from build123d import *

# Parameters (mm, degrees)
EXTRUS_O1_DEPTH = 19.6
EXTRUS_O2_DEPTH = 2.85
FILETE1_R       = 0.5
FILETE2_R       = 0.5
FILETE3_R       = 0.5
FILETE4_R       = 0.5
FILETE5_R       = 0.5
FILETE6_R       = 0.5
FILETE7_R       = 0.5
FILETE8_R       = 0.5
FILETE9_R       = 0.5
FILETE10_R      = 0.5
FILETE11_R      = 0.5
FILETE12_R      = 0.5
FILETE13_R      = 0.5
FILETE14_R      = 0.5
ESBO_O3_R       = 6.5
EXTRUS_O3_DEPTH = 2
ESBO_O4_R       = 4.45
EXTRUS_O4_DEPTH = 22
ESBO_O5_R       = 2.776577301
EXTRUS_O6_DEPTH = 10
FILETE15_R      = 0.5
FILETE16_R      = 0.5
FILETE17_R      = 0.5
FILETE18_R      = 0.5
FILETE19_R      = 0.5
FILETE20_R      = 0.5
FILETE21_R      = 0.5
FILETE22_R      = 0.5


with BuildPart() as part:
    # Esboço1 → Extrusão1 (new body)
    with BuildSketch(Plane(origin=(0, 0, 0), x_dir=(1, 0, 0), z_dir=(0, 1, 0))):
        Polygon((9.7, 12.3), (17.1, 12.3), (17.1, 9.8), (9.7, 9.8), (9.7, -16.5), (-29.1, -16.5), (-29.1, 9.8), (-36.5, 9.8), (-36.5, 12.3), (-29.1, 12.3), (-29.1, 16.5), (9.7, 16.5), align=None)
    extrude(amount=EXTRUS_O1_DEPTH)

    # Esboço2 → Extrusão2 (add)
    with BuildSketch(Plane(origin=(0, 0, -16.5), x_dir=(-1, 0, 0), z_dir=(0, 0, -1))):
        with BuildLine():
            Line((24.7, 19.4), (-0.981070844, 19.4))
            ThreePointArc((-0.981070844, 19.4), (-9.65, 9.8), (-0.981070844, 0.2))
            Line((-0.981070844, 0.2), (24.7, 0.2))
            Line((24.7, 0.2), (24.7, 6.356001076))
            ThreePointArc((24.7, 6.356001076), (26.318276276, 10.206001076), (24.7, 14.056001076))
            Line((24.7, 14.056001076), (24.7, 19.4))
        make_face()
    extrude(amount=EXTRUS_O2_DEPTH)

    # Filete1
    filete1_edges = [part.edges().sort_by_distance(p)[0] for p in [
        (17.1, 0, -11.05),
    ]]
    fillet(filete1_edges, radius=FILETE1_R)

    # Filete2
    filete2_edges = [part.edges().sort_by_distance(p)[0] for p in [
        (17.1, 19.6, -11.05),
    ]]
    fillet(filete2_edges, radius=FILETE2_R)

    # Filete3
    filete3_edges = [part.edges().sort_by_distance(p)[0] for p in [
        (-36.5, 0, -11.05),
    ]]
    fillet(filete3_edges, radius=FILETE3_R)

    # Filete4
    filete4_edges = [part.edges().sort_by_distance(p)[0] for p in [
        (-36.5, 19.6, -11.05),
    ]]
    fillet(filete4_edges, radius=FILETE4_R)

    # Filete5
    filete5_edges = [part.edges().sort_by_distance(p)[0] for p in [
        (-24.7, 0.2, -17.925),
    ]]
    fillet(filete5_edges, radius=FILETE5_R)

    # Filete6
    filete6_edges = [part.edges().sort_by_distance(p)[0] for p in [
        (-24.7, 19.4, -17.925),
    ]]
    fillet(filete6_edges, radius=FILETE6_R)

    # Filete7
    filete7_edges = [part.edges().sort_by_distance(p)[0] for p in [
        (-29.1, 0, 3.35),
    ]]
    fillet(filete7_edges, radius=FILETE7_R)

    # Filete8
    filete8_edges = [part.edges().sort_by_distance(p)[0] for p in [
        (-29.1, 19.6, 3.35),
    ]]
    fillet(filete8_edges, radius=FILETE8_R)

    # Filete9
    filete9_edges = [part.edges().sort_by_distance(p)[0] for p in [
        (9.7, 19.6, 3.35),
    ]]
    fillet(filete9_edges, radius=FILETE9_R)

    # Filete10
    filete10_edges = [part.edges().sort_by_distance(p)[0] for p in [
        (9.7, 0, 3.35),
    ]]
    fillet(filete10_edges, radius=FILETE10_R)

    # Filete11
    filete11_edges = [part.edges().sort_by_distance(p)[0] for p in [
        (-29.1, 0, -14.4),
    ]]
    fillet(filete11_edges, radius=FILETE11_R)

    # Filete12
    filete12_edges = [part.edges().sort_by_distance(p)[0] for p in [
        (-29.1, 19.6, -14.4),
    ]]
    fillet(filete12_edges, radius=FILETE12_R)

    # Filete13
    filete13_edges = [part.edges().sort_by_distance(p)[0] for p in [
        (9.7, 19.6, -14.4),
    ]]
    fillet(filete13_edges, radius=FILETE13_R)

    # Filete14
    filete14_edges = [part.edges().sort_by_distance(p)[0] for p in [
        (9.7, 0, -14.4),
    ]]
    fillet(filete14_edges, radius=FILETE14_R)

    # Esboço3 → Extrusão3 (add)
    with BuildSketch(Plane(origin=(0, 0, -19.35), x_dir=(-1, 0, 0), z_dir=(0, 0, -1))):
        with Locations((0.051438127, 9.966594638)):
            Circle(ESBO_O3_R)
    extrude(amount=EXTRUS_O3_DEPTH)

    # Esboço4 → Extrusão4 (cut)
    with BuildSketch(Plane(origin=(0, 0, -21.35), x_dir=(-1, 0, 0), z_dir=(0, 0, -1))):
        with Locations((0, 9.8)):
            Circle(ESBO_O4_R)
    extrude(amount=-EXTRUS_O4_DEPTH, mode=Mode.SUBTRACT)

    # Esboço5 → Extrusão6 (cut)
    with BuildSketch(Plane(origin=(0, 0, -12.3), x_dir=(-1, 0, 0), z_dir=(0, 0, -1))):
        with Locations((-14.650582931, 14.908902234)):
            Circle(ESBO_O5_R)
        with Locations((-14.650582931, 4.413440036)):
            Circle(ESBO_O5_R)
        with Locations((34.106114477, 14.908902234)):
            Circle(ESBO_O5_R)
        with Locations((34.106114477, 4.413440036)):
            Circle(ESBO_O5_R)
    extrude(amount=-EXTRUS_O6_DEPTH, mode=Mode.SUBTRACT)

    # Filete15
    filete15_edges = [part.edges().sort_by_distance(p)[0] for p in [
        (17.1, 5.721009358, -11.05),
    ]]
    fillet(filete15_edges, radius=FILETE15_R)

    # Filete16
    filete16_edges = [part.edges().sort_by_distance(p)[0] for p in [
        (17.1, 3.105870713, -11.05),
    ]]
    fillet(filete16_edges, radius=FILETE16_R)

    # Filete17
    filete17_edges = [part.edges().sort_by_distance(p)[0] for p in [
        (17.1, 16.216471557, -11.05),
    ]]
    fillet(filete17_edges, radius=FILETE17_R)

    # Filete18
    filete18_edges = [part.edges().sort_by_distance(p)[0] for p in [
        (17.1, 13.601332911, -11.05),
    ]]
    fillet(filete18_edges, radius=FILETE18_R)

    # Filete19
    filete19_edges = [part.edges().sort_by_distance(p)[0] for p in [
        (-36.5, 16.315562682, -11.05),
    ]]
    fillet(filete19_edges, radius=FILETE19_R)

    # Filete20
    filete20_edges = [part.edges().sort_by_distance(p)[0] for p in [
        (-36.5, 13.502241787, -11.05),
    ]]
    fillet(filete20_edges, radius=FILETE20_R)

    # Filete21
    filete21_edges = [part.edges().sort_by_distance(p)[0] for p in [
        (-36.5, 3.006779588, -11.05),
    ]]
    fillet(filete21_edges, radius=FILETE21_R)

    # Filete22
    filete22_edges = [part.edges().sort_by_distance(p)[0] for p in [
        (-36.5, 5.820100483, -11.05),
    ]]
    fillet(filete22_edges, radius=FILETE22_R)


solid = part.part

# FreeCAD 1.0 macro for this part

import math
import FreeCAD as App
import Part
import Sketcher
from FreeCAD import Vector


def edges_at(feature, points):
    """Names of the edges that pass closest to the given points."""
    edges = feature.Shape.Edges
    near = lambda p: min(range(len(edges)), key=lambda i: edges[i].distToShape(Part.Vertex(*p))[0])
    return sorted({f"Edge{near(p) + 1}" for p in points})


def add_polygon(sketch, points):
    """Adds a closed chain of lines whose ends are joined by coincident constraints."""
    first, n = sketch.GeometryCount, len(points)
    for a, b in zip(points, points[1:] + points[:1]):
        sketch.addGeometry(Part.LineSegment(App.Vector(*a, 0), App.Vector(*b, 0)), False)
    for i in range(n):
        sketch.addConstraint(Sketcher.Constraint("Coincident", first + i, 2, first + (i + 1) % n, 1))

doc = App.newDocument("Part")
body = doc.addObject("PartDesign::Body", "Body")

# Sketch on XZ plane
sketch1 = doc.addObject("Sketcher::SketchObject", "Sketch")
body.addObject(sketch1)
sketch1.AttachmentSupport = (doc.XZ_Plane, [""])
sketch1.MapMode = "FlatFace"
add_polygon(sketch1, [(17.1, -12.3), (9.7, -12.3), (9.7, -16.5), (-29.1, -16.5), (-29.1, -12.3), (-36.5, -12.3), (-36.5, -9.8), (-29.1, -9.8), (-29.1, 16.5), (9.7, 16.5), (9.7, -9.8), (17.1, -9.8)])  # lines 0-11
sketch1.addConstraint(Sketcher.Constraint("Horizontal", 0))
sketch1.addConstraint(Sketcher.Constraint("Vertical", 1))
sketch1.addConstraint(Sketcher.Constraint("Horizontal", 2))
sketch1.addConstraint(Sketcher.Constraint("Vertical", 3))
sketch1.addConstraint(Sketcher.Constraint("Horizontal", 4))
sketch1.addConstraint(Sketcher.Constraint("Vertical", 5))
sketch1.addConstraint(Sketcher.Constraint("Horizontal", 6))
sketch1.addConstraint(Sketcher.Constraint("Vertical", 7))
sketch1.addConstraint(Sketcher.Constraint("Horizontal", 8))
sketch1.addConstraint(Sketcher.Constraint("Vertical", 9))
sketch1.addConstraint(Sketcher.Constraint("Horizontal", 10))
sketch1.addConstraint(Sketcher.Constraint("Vertical", 11))
sketch1.addConstraint(Sketcher.Constraint("Symmetric", 2, 2, 7, 2, -1))
sketch1.addConstraint(Sketcher.Constraint("Horizontal", 0, 2, 3, 2))
sketch1.addConstraint(Sketcher.Constraint("Horizontal", 6, 2, 9, 2))
sketch1.addConstraint(Sketcher.Constraint("Vertical", 1, 2, 8, 2))
sketch1.addConstraint(Sketcher.Constraint("Equal", 0, 4))
sketch1.addConstraint(Sketcher.Constraint("DistanceX", 0, 2, 0, 1, 7.4))
sketch1.addConstraint(Sketcher.Constraint("DistanceX", 2, 2, 2, 1, 38.8))
sketch1.addConstraint(Sketcher.Constraint("DistanceY", 1, 2, 1, 1, 4.2))
sketch1.addConstraint(Sketcher.Constraint("DistanceY", 5, 1, 5, 2, 2.5))
sketch1.addConstraint(Sketcher.Constraint("DistanceY", 7, 1, 7, 2, 26.3))
sketch1.addConstraint(Sketcher.Constraint("DistanceX", -1, 1, 0, 2, 9.7))
pad1 = doc.addObject("PartDesign::Pad", "Pad")
body.addObject(pad1)
pad1.Profile = sketch1
pad1.Length = 19.6
pad1.Reversed = True

# Sketch on XY plane
sketch2 = doc.addObject("Sketcher::SketchObject", "Sketch001")
body.addObject(sketch2)
sketch2.AttachmentSupport = (doc.XY_Plane, [""])
sketch2.MapMode = "FlatFace"
sketch2.AttachmentOffset = App.Placement(Vector(0, 0, -16.5), App.Rotation())
sketch2.addGeometry(Part.LineSegment(Vector(-25, 19, 0), Vector(1, 19, 0)), False)
sketch2.addGeometry(Part.ArcOfCircle(Part.Circle(Vector(0, 10, 0), Vector(0, 0, 1), 10), math.radians(-84), math.radians(84)), False)
sketch2.addGeometry(Part.LineSegment(Vector(1, 0, 0), Vector(-25, 0, 0)), False)
sketch2.addGeometry(Part.LineSegment(Vector(-25, 0, 0), Vector(-25, 6, 0)), False)
sketch2.addGeometry(Part.ArcOfCircle(Part.Circle(Vector(-21, 10, 0), Vector(0, 0, 1), 5), math.radians(134), math.radians(226)), False)
sketch2.addGeometry(Part.LineSegment(Vector(-25, 14, 0), Vector(-25, 19, 0)), False)
sketch2.addConstraint(Sketcher.Constraint("Coincident", 0, 2, 1, 2))
sketch2.addConstraint(Sketcher.Constraint("Coincident", 1, 1, 2, 1))
sketch2.addConstraint(Sketcher.Constraint("Coincident", 2, 2, 3, 1))
sketch2.addConstraint(Sketcher.Constraint("Coincident", 3, 2, 4, 2))
sketch2.addConstraint(Sketcher.Constraint("Coincident", 4, 1, 5, 1))
sketch2.addConstraint(Sketcher.Constraint("Coincident", 5, 2, 0, 1))
sketch2.addConstraint(Sketcher.Constraint("Horizontal", 0))
sketch2.addConstraint(Sketcher.Constraint("Horizontal", 2))
sketch2.addConstraint(Sketcher.Constraint("Vertical", 3))
sketch2.addConstraint(Sketcher.Constraint("Vertical", 5))
sketch2.addConstraint(Sketcher.Constraint("PointOnObject", 1, 3, -2))
sketch2.addConstraint(Sketcher.Constraint("Vertical", 0, 2, 1, 1))
sketch2.addConstraint(Sketcher.Constraint("Vertical", 3, 2, 4, 1))
sketch2.addConstraint(Sketcher.Constraint("Radius", 1, 9.65))
sketch2.addConstraint(Sketcher.Constraint("DistanceY", -1, 1, 1, 3, 9.8))
sketch2.addConstraint(Sketcher.Constraint("DistanceY", -1, 1, 0, 2, 19.4))
sketch2.addConstraint(Sketcher.Constraint("DistanceX", 2, 2, -1, 1, 24.7))
sketch2.addConstraint(Sketcher.Constraint("DistanceY", 3, 2, 4, 1, 7.7))
sketch2.addConstraint(Sketcher.Constraint("DistanceY", 3, 1, 3, 2, 6.156001))
sketch2.addConstraint(Sketcher.Constraint("Radius", 4, 5.388857))
pad2 = doc.addObject("PartDesign::Pad", "Pad001")
body.addObject(pad2)
pad2.Profile = sketch2
pad2.Length = 2.85
pad2.Reversed = True
doc.recompute()

fillet = doc.addObject("PartDesign::Fillet", "Fillet")
body.addObject(fillet)
fillet.Base = (pad2, edges_at(pad2, [(17.1, 0, -11.05)]))
fillet.Radius = 0.5
doc.recompute()

fillet2 = doc.addObject("PartDesign::Fillet", "Fillet001")
body.addObject(fillet2)
fillet2.Base = (fillet, edges_at(fillet, [(17.1, 19.6, -11.05)]))
fillet2.Radius = 0.5
doc.recompute()

fillet3 = doc.addObject("PartDesign::Fillet", "Fillet002")
body.addObject(fillet3)
fillet3.Base = (fillet2, edges_at(fillet2, [(-36.5, 0, -11.05)]))
fillet3.Radius = 0.5
doc.recompute()

fillet4 = doc.addObject("PartDesign::Fillet", "Fillet003")
body.addObject(fillet4)
fillet4.Base = (fillet3, edges_at(fillet3, [(-36.5, 19.6, -11.05)]))
fillet4.Radius = 0.5
doc.recompute()

fillet5 = doc.addObject("PartDesign::Fillet", "Fillet004")
body.addObject(fillet5)
fillet5.Base = (fillet4, edges_at(fillet4, [(-24.7, 0.2, -17.925)]))
fillet5.Radius = 0.5
doc.recompute()

fillet6 = doc.addObject("PartDesign::Fillet", "Fillet005")
body.addObject(fillet6)
fillet6.Base = (fillet5, edges_at(fillet5, [(-24.7, 19.4, -17.925)]))
fillet6.Radius = 0.5
doc.recompute()

fillet7 = doc.addObject("PartDesign::Fillet", "Fillet006")
body.addObject(fillet7)
fillet7.Base = (fillet6, edges_at(fillet6, [(-29.1, 0, 3.35)]))
fillet7.Radius = 0.5
doc.recompute()

fillet8 = doc.addObject("PartDesign::Fillet", "Fillet007")
body.addObject(fillet8)
fillet8.Base = (fillet7, edges_at(fillet7, [(-29.1, 19.6, 3.35)]))
fillet8.Radius = 0.5
doc.recompute()

fillet9 = doc.addObject("PartDesign::Fillet", "Fillet008")
body.addObject(fillet9)
fillet9.Base = (fillet8, edges_at(fillet8, [(9.7, 19.6, 3.35)]))
fillet9.Radius = 0.5
doc.recompute()

fillet10 = doc.addObject("PartDesign::Fillet", "Fillet009")
body.addObject(fillet10)
fillet10.Base = (fillet9, edges_at(fillet9, [(9.7, 0, 3.35)]))
fillet10.Radius = 0.5
doc.recompute()

fillet11 = doc.addObject("PartDesign::Fillet", "Fillet010")
body.addObject(fillet11)
fillet11.Base = (fillet10, edges_at(fillet10, [(-29.1, 0, -14.4)]))
fillet11.Radius = 0.5
doc.recompute()

fillet12 = doc.addObject("PartDesign::Fillet", "Fillet011")
body.addObject(fillet12)
fillet12.Base = (fillet11, edges_at(fillet11, [(-29.1, 19.6, -14.4)]))
fillet12.Radius = 0.5
doc.recompute()

fillet13 = doc.addObject("PartDesign::Fillet", "Fillet012")
body.addObject(fillet13)
fillet13.Base = (fillet12, edges_at(fillet12, [(9.7, 19.6, -14.4)]))
fillet13.Radius = 0.5
doc.recompute()

fillet14 = doc.addObject("PartDesign::Fillet", "Fillet013")
body.addObject(fillet14)
fillet14.Base = (fillet13, edges_at(fillet13, [(9.7, 0, -14.4)]))
fillet14.Radius = 0.5

# Sketch on XY plane
sketch3 = doc.addObject("Sketcher::SketchObject", "Sketch002")
body.addObject(sketch3)
sketch3.AttachmentSupport = (doc.XY_Plane, [""])
sketch3.MapMode = "FlatFace"
sketch3.AttachmentOffset = App.Placement(Vector(0, 0, -19.35), App.Rotation())
sketch3.addGeometry(Part.Circle(Vector(0, 10, 0), Vector(0, 0, 1), 6), False)
sketch3.addConstraint(Sketcher.Constraint("Diameter", 0, 13.0))
sketch3.addConstraint(Sketcher.Constraint("DistanceX", 0, 3, -1, 1, 0.051438))
sketch3.addConstraint(Sketcher.Constraint("DistanceY", -1, 1, 0, 3, 9.966595))
pad3 = doc.addObject("PartDesign::Pad", "Pad002")
body.addObject(pad3)
pad3.Profile = sketch3
pad3.Length = 2
pad3.Reversed = True

# Sketch on XY plane
sketch4 = doc.addObject("Sketcher::SketchObject", "Sketch003")
body.addObject(sketch4)
sketch4.AttachmentSupport = (doc.XY_Plane, [""])
sketch4.MapMode = "FlatFace"
sketch4.AttachmentOffset = App.Placement(Vector(0, 0, -21.35), App.Rotation())
sketch4.addGeometry(Part.Circle(Vector(0, 9.8, 0), Vector(0, 0, 1), 4.5), False)
sketch4.addConstraint(Sketcher.Constraint("PointOnObject", 0, 3, -2))
sketch4.addConstraint(Sketcher.Constraint("Diameter", 0, 8.9))
sketch4.addConstraint(Sketcher.Constraint("DistanceY", -1, 1, 0, 3, 9.8))
pocket1 = doc.addObject("PartDesign::Pocket", "Pocket")
body.addObject(pocket1)
pocket1.Profile = sketch4
pocket1.Length = 22
pocket1.Reversed = True

# Sketch on XY plane
sketch5 = doc.addObject("Sketcher::SketchObject", "Sketch004")
body.addObject(sketch5)
sketch5.AttachmentSupport = (doc.XY_Plane, [""])
sketch5.MapMode = "FlatFace"
sketch5.AttachmentOffset = App.Placement(Vector(0, 0, -12.3), App.Rotation())
sketch5.addGeometry(Part.Circle(Vector(14.7, 14.9, 0), Vector(0, 0, 1), 2.8), False)
sketch5.addGeometry(Part.Circle(Vector(14.7, 4.4, 0), Vector(0, 0, 1), 2.8), False)
sketch5.addGeometry(Part.Circle(Vector(-34.1, 14.9, 0), Vector(0, 0, 1), 2.8), False)
sketch5.addGeometry(Part.Circle(Vector(-34.1, 4.4, 0), Vector(0, 0, 1), 2.8), False)
sketch5.addConstraint(Sketcher.Constraint("Equal", 0, 1))
sketch5.addConstraint(Sketcher.Constraint("Equal", 1, 2))
sketch5.addConstraint(Sketcher.Constraint("Equal", 2, 3))
sketch5.addConstraint(Sketcher.Constraint("Horizontal", 0, 3, 2, 3))
sketch5.addConstraint(Sketcher.Constraint("Horizontal", 1, 3, 3, 3))
sketch5.addConstraint(Sketcher.Constraint("Vertical", 0, 3, 1, 3))
sketch5.addConstraint(Sketcher.Constraint("Vertical", 2, 3, 3, 3))
sketch5.addConstraint(Sketcher.Constraint("Diameter", 0, 5.553155))
sketch5.addConstraint(Sketcher.Constraint("DistanceY", -1, 1, 1, 3, 4.41344))
sketch5.addConstraint(Sketcher.Constraint("DistanceX", -1, 1, 0, 3, 14.650583))
sketch5.addConstraint(Sketcher.Constraint("DistanceY", -1, 1, 0, 3, 14.908902))
sketch5.addConstraint(Sketcher.Constraint("DistanceX", 2, 3, -1, 1, 34.106114))
pocket2 = doc.addObject("PartDesign::Pocket", "Pocket001")
body.addObject(pocket2)
pocket2.Profile = sketch5
pocket2.Length = 10
pocket2.Reversed = True
doc.recompute()

fillet15 = doc.addObject("PartDesign::Fillet", "Fillet014")
body.addObject(fillet15)
fillet15.Base = (pocket2, edges_at(pocket2, [(17.1, 5.721, -11.05)]))
fillet15.Radius = 0.5
doc.recompute()

fillet16 = doc.addObject("PartDesign::Fillet", "Fillet015")
body.addObject(fillet16)
fillet16.Base = (fillet15, edges_at(fillet15, [(17.1, 3.106, -11.05)]))
fillet16.Radius = 0.5
doc.recompute()

fillet17 = doc.addObject("PartDesign::Fillet", "Fillet016")
body.addObject(fillet17)
fillet17.Base = (fillet16, edges_at(fillet16, [(17.1, 16.216, -11.05)]))
fillet17.Radius = 0.5
doc.recompute()

fillet18 = doc.addObject("PartDesign::Fillet", "Fillet017")
body.addObject(fillet18)
fillet18.Base = (fillet17, edges_at(fillet17, [(17.1, 13.601, -11.05)]))
fillet18.Radius = 0.5
doc.recompute()

fillet19 = doc.addObject("PartDesign::Fillet", "Fillet018")
body.addObject(fillet19)
fillet19.Base = (fillet18, edges_at(fillet18, [(-36.5, 16.316, -11.05)]))
fillet19.Radius = 0.5
doc.recompute()

fillet20 = doc.addObject("PartDesign::Fillet", "Fillet019")
body.addObject(fillet20)
fillet20.Base = (fillet19, edges_at(fillet19, [(-36.5, 13.502, -11.05)]))
fillet20.Radius = 0.5
doc.recompute()

fillet21 = doc.addObject("PartDesign::Fillet", "Fillet020")
body.addObject(fillet21)
fillet21.Base = (fillet20, edges_at(fillet20, [(-36.5, 3.007, -11.05)]))
fillet21.Radius = 0.5
doc.recompute()

fillet22 = doc.addObject("PartDesign::Fillet", "Fillet021")
body.addObject(fillet22)
fillet22.Base = (fillet21, edges_at(fillet21, [(-36.5, 5.82, -11.05)]))
fillet22.Radius = 0.5

doc.recompute()
